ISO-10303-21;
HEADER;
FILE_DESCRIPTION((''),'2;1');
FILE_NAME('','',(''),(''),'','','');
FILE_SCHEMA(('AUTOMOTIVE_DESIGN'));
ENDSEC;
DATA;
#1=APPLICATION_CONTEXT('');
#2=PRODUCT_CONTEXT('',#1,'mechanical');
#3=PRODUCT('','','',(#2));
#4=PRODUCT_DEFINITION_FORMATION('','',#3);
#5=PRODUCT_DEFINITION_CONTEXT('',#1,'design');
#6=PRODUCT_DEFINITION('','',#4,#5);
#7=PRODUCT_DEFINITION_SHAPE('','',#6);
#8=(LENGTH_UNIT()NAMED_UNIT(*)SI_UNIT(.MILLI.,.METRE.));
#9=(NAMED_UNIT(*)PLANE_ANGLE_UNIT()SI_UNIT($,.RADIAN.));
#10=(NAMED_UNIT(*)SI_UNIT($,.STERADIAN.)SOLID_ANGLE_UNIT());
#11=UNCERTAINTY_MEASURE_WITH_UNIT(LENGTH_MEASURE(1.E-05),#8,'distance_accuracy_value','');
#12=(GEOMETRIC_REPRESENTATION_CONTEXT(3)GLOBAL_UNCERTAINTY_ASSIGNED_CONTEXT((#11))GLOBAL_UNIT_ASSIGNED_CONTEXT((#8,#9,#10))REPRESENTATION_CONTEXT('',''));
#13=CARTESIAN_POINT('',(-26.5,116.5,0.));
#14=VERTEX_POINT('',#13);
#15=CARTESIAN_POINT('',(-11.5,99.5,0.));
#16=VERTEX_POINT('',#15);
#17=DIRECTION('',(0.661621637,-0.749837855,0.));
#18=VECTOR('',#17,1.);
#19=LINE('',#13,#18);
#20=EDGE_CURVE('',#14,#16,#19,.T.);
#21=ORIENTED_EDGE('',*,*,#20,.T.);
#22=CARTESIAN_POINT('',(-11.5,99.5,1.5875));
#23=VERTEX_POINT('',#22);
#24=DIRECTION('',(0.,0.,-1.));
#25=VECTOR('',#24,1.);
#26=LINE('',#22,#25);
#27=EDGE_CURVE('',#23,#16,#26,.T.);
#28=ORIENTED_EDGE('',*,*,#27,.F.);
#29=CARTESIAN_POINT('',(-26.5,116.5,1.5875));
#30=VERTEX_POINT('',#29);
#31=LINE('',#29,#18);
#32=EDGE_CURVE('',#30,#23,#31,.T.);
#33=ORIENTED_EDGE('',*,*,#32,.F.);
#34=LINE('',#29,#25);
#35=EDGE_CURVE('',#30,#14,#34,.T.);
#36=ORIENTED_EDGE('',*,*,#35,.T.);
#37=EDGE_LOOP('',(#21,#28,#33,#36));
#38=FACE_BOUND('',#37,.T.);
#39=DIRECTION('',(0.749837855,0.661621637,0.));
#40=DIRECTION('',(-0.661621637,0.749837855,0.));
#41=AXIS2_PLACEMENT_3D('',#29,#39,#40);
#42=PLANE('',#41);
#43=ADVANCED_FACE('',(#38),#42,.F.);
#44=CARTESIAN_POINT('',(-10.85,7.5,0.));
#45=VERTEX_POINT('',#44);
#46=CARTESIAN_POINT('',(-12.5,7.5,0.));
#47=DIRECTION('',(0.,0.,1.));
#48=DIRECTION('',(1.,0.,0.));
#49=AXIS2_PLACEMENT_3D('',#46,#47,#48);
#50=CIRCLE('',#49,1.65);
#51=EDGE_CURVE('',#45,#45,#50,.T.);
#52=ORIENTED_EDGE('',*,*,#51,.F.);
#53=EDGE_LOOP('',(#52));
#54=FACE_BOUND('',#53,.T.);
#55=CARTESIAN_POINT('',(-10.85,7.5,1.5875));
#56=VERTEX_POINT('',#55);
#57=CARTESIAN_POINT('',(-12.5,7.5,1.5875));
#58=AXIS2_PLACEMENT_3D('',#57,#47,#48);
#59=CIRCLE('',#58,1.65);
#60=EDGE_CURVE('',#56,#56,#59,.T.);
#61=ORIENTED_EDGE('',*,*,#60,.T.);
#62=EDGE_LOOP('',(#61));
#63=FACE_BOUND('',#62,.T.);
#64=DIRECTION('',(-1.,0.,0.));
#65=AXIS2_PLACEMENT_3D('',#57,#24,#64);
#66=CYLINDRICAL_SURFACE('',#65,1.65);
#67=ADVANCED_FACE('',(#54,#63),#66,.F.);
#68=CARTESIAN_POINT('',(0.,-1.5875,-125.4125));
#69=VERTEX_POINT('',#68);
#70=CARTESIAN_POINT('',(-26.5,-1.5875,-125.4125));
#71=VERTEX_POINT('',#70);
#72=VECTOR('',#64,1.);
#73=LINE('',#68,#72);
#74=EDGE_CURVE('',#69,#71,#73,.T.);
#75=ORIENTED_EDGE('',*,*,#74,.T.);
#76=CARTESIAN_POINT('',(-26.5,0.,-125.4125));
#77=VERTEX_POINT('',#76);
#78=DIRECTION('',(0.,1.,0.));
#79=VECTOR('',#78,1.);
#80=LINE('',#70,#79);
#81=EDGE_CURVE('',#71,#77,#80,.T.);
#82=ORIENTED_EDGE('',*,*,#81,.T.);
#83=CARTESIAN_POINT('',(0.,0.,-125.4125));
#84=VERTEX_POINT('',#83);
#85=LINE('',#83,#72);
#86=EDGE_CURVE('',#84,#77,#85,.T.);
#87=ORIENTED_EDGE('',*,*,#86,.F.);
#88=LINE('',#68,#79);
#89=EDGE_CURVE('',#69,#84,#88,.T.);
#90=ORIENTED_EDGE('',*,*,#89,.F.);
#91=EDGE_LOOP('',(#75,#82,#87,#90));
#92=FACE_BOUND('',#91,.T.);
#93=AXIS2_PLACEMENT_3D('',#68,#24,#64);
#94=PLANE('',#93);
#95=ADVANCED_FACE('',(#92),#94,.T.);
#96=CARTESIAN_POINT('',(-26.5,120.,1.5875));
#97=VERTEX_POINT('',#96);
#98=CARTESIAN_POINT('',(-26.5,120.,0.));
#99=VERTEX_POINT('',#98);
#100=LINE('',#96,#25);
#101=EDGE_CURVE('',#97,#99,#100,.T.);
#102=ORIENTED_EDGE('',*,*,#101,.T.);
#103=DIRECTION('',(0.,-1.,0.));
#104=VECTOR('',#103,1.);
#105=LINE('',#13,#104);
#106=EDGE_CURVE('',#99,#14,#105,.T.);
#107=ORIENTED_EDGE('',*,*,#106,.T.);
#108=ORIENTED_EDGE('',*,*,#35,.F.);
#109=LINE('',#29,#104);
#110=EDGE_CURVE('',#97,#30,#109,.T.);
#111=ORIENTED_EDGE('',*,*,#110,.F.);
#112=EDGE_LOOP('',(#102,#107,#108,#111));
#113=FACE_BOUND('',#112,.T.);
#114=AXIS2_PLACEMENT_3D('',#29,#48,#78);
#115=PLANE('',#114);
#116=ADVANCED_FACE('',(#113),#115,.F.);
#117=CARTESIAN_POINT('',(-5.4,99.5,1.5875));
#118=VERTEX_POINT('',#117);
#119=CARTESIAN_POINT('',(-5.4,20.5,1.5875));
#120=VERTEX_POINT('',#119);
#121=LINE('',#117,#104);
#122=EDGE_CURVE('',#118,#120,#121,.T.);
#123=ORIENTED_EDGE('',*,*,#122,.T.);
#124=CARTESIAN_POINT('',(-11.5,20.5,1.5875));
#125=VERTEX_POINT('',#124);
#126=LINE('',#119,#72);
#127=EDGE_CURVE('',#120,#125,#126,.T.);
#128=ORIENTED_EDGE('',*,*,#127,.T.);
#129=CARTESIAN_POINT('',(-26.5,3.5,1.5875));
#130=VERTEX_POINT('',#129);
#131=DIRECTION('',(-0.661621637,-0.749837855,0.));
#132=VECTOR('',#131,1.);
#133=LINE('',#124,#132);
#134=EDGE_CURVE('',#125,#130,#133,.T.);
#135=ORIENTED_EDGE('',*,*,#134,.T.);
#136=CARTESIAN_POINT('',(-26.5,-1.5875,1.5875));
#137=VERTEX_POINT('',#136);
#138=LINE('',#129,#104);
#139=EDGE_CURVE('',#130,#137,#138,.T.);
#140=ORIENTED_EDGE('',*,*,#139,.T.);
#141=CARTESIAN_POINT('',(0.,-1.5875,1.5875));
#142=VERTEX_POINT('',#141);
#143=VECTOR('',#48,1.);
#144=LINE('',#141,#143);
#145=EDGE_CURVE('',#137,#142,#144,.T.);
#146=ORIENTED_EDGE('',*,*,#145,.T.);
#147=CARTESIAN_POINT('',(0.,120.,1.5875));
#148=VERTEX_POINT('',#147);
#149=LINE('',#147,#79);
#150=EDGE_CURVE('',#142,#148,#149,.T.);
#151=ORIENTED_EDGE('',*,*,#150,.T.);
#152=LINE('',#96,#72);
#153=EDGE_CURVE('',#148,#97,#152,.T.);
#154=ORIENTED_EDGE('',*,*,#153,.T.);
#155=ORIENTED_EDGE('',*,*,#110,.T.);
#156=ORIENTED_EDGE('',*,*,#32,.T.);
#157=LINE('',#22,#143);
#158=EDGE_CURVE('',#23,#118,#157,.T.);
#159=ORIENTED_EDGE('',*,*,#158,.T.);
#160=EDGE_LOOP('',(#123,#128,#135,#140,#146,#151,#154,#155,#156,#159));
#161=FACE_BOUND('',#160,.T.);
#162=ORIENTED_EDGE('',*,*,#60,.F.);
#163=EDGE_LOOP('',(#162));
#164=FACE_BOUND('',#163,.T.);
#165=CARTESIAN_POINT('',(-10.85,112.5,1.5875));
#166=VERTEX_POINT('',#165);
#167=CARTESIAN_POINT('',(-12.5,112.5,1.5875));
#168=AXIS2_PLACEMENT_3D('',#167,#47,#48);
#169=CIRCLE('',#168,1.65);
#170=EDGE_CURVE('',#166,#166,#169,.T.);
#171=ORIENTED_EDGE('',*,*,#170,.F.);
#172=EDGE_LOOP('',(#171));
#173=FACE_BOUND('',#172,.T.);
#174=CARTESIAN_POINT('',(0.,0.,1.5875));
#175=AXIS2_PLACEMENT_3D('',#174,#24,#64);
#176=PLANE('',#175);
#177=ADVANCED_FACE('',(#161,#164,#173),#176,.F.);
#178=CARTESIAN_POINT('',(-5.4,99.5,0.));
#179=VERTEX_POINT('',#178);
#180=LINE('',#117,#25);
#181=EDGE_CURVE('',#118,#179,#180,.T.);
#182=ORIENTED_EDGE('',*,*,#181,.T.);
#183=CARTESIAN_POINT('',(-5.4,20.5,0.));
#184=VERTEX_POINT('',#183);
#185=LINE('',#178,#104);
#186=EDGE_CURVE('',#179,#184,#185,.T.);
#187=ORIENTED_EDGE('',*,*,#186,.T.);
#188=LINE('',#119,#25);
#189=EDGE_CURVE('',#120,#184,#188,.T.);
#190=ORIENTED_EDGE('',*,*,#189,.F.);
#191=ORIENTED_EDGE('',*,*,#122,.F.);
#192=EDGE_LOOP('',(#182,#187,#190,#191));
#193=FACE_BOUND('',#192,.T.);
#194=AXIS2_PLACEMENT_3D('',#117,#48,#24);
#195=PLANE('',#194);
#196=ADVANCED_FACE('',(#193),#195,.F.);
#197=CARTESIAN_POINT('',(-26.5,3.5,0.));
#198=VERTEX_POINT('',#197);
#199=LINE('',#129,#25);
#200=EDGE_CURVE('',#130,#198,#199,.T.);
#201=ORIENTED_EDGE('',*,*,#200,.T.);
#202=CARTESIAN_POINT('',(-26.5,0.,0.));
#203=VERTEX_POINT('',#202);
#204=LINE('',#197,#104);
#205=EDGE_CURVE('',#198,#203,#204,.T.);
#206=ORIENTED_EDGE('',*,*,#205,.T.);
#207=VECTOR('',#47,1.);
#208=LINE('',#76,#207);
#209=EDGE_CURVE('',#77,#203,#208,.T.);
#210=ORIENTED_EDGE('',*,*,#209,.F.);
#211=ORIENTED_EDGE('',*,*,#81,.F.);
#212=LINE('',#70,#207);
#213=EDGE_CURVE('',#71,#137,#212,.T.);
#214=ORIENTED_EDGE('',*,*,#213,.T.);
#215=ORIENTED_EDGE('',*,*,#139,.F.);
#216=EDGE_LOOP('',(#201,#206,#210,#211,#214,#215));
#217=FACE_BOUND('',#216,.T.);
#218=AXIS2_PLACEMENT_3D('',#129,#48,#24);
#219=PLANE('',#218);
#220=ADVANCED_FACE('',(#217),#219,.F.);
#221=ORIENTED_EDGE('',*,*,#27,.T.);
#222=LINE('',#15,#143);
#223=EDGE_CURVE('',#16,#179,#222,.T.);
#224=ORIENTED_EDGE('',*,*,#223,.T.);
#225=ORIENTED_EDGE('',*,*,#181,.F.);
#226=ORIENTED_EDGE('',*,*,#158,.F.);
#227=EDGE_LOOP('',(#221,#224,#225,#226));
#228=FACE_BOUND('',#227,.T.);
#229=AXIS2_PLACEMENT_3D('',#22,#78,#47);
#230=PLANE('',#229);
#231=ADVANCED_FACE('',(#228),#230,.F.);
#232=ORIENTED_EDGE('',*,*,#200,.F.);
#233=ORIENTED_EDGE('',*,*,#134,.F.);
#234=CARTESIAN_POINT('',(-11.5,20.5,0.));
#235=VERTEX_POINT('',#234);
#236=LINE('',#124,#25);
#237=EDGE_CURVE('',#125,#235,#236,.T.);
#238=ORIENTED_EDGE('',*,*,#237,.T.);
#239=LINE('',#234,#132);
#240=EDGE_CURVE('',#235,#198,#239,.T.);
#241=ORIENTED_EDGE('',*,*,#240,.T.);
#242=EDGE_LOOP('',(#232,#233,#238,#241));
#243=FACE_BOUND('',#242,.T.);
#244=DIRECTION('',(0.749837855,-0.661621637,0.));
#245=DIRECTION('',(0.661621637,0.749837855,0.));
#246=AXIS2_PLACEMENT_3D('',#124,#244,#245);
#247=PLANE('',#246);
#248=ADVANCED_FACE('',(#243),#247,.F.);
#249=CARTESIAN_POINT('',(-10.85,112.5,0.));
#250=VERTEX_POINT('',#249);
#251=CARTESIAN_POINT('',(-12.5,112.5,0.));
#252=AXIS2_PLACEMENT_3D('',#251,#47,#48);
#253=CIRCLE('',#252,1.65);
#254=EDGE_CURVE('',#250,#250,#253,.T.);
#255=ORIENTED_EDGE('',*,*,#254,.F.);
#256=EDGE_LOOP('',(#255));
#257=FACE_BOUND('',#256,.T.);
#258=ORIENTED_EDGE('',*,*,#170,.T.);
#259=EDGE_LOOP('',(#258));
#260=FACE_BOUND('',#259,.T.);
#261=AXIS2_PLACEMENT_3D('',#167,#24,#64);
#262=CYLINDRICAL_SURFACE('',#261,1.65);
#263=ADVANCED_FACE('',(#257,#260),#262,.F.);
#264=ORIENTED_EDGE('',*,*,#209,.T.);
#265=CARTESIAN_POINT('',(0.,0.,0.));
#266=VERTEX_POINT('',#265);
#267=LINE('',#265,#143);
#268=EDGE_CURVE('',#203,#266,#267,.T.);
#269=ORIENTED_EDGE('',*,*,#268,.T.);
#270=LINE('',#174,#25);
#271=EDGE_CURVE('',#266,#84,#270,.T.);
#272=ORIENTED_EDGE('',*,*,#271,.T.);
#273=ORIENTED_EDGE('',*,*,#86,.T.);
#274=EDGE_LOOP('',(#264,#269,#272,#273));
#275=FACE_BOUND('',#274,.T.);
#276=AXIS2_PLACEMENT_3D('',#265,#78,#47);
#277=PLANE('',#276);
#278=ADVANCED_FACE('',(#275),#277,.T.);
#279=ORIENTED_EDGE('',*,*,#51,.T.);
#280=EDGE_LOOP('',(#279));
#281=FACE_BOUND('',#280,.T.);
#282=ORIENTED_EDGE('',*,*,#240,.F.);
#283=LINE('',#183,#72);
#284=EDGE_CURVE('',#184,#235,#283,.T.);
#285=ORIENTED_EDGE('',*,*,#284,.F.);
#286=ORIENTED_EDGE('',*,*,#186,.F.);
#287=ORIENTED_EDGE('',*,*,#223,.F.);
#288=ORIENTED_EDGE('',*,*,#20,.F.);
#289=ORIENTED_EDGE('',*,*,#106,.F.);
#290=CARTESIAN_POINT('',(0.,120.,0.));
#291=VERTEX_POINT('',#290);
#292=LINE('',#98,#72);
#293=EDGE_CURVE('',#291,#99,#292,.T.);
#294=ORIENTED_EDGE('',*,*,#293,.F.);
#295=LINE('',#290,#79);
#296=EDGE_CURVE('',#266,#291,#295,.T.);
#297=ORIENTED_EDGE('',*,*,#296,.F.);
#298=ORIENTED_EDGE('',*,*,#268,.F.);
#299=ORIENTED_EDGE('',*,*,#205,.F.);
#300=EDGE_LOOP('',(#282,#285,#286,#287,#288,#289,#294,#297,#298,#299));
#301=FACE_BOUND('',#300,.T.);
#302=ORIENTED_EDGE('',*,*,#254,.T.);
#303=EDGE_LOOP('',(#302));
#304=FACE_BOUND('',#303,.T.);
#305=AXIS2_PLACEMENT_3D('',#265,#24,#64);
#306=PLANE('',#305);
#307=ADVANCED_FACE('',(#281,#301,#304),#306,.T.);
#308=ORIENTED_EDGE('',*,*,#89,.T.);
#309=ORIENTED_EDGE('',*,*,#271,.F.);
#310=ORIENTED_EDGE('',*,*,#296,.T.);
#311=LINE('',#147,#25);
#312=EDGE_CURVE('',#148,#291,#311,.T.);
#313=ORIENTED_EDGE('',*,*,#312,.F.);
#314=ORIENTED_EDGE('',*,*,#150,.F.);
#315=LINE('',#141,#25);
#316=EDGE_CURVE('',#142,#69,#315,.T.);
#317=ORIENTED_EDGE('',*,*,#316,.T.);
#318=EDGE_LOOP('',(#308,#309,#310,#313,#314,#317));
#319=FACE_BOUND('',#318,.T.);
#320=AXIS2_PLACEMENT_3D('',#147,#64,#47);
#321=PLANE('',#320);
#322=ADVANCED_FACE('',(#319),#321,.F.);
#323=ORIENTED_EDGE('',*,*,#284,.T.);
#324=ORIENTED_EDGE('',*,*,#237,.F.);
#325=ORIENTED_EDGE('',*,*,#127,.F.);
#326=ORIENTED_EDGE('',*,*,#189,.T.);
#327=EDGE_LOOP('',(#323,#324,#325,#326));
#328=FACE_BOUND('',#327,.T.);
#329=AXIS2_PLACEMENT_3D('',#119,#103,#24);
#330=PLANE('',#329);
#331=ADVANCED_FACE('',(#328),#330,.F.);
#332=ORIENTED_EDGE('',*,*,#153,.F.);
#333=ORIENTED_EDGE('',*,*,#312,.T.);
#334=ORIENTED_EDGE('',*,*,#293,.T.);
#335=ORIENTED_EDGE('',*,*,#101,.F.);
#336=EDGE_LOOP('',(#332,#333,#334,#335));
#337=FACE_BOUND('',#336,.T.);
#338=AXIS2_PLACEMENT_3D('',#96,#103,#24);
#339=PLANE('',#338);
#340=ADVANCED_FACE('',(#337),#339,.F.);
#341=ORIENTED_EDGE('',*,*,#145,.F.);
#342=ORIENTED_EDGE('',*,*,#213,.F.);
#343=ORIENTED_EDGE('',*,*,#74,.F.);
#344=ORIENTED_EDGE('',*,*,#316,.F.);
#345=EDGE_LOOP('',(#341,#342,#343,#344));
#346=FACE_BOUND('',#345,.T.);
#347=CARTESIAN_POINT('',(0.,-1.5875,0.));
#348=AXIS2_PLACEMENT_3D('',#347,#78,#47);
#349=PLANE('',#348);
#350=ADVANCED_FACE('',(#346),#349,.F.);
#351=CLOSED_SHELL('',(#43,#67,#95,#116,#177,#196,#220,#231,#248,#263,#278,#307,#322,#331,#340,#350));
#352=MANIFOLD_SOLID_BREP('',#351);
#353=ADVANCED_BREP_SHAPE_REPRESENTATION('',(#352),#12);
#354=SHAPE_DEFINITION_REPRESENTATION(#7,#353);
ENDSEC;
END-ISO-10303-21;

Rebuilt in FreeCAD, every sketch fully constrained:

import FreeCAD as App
import Part
import Sketcher
Q = App.Units.Quantity


def add_polygon(sketch, points):
    """Adds a closed chain of lines whose ends are joined by coincident constraints."""
    first, n = sketch.GeometryCount, len(points)
    for a, b in zip(points, points[1:] + points[:1]):
        sketch.addGeometry(Part.LineSegment(App.Vector(*a, 0), App.Vector(*b, 0)), False)
    for i in range(n):
        sketch.addConstraint(Sketcher.Constraint("Coincident", first + i, 2, first + (i + 1) % n, 1))

doc = App.newDocument("Part")
params = doc.addObject("Spreadsheet::Sheet", "Params")
for row, (alias, value) in enumerate([
    ("sketch1_diameter", "3.3 mm"),
    ("sketch1_height", "79 mm"),
    ("sketch1_height2", "120 mm"),
    ("sketch1_width", "26.5 mm"),
    ("sketch1_width2", "6.1 mm"),
    ("pad1_length", "1.5875 mm"),
    ("sketch2_height", "127 mm"),
    ("sketch2_width", "26.5 mm"),
    ("pad2_length", "1.5875 mm"),
], start=1):
    params.set(f"A{row}", alias)
    params.set(f"B{row}", "=" + value)
    params.setAlias(f"B{row}", alias)

body = doc.addObject("PartDesign::Body", "Body")

# Sketch on XY plane
sketch1 = body.newObject("Sketcher::SketchObject", "Sketch")
sketch1.AttachmentSupport = (doc.getObject("XY_Plane"), [""])
sketch1.MapMode = "FlatFace"
add_polygon(sketch1, [(0, 120), (-26.5, 120), (-26.5, 116.5), (-11.5, 99.5), (-5.4, 99.5), (-5.4, 20.5), (-11.5, 20.5), (-26.5, 3.5), (-26.5, 0), (0, 0)])  # lines 0-9
sketch1.addGeometry(Part.Circle(App.Vector(-12.5, 7.5, 0), App.Vector(0, 0, 1), 1.6), False)  # 10
sketch1.addGeometry(Part.Circle(App.Vector(-12.5, 112.5, 0), App.Vector(0, 0, 1), 1.6), False)  # 11
sketch1.addConstraint([
    Sketcher.Constraint("Horizontal", 0),
    Sketcher.Constraint("Vertical", 1),
    Sketcher.Constraint("Horizontal", 3),
    Sketcher.Constraint("Vertical", 4),
    Sketcher.Constraint("Horizontal", 5),
    Sketcher.Constraint("Vertical", 7),
    Sketcher.Constraint("Horizontal", 8),
    Sketcher.Constraint("Vertical", 9),
    Sketcher.Constraint("Coincident", 8, 2, -1, 1),
    Sketcher.Constraint("Equal", 10, 11),
    Sketcher.Constraint("Vertical", 10, 3, 11, 3),
    Sketcher.Constraint("Vertical", 2, 2, 5, 2),
    Sketcher.Constraint("Vertical", 1, 2, 6, 2),
    Sketcher.Constraint("Equal", 1, 7),
    Sketcher.Constraint("Equal", 2, 6),
    Sketcher.Constraint("Diameter", 10, Q("3.3 mm")),
    Sketcher.Constraint("DistanceY", 4, 2, 4, 1, Q("79 mm")),
    Sketcher.Constraint("DistanceY", 9, 1, 9, 2, Q("120 mm")),
    Sketcher.Constraint("DistanceX", 0, 2, 0, 1, Q("26.5 mm")),
    Sketcher.Constraint("DistanceX", 3, 1, 3, 2, Q("6.1 mm")),
    Sketcher.Constraint("DistanceY", 1, 2, 1, 1, Q("3.5 mm")),
    Sketcher.Constraint("DistanceY", 10, 3, 11, 3, Q("105 mm")),
    Sketcher.Constraint("DistanceX", 0, 2, 11, 3, Q("14 mm")),
    Sketcher.Constraint("DistanceY", 11, 3, 1, 2, Q("4 mm")),
    Sketcher.Constraint("DistanceX", 11, 3, 2, 2, Q("1 mm")),
])
sketch1.setExpression("Constraints[25]", "Params.sketch1_diameter")
sketch1.setExpression("Constraints[26]", "Params.sketch1_height")
sketch1.setExpression("Constraints[27]", "Params.sketch1_height2")
sketch1.setExpression("Constraints[28]", "Params.sketch1_width")
sketch1.setExpression("Constraints[29]", "Params.sketch1_width2")
pad1 = body.newObject("PartDesign::Pad", "Pad")
pad1.Profile = sketch1
pad1.setExpression("Length", "Params.pad1_length")

# Sketch on XZ plane
sketch2 = body.newObject("Sketcher::SketchObject", "Sketch001")
sketch2.AttachmentSupport = (doc.getObject("XZ_Plane"), [""])
sketch2.MapMode = "FlatFace"
add_polygon(sketch2, [(-26, -125), (-26, 2), (0, 2), (0, -125)])  # lines 0-3
sketch2.addConstraint([
    Sketcher.Constraint("Vertical", 0),
    Sketcher.Constraint("Horizontal", 1),
    Sketcher.Constraint("Vertical", 2),
    Sketcher.Constraint("Horizontal", 3),
    Sketcher.Constraint("PointOnObject", 1, 2, -2),
    Sketcher.Constraint("DistanceY", 0, 1, 0, 2, Q("127 mm")),
    Sketcher.Constraint("DistanceX", 1, 1, 1, 2, Q("26.5 mm")),
    Sketcher.Constraint("DistanceY", -1, 1, 0, 2, Q("1.5875 mm")),
])
sketch2.setExpression("Constraints[9]", "Params.sketch2_height")
sketch2.setExpression("Constraints[10]", "Params.sketch2_width")
pad2 = body.newObject("PartDesign::Pad", "Pad001")
pad2.Profile = sketch2
pad2.setExpression("Length", "Params.pad2_length")

doc.recompute()
